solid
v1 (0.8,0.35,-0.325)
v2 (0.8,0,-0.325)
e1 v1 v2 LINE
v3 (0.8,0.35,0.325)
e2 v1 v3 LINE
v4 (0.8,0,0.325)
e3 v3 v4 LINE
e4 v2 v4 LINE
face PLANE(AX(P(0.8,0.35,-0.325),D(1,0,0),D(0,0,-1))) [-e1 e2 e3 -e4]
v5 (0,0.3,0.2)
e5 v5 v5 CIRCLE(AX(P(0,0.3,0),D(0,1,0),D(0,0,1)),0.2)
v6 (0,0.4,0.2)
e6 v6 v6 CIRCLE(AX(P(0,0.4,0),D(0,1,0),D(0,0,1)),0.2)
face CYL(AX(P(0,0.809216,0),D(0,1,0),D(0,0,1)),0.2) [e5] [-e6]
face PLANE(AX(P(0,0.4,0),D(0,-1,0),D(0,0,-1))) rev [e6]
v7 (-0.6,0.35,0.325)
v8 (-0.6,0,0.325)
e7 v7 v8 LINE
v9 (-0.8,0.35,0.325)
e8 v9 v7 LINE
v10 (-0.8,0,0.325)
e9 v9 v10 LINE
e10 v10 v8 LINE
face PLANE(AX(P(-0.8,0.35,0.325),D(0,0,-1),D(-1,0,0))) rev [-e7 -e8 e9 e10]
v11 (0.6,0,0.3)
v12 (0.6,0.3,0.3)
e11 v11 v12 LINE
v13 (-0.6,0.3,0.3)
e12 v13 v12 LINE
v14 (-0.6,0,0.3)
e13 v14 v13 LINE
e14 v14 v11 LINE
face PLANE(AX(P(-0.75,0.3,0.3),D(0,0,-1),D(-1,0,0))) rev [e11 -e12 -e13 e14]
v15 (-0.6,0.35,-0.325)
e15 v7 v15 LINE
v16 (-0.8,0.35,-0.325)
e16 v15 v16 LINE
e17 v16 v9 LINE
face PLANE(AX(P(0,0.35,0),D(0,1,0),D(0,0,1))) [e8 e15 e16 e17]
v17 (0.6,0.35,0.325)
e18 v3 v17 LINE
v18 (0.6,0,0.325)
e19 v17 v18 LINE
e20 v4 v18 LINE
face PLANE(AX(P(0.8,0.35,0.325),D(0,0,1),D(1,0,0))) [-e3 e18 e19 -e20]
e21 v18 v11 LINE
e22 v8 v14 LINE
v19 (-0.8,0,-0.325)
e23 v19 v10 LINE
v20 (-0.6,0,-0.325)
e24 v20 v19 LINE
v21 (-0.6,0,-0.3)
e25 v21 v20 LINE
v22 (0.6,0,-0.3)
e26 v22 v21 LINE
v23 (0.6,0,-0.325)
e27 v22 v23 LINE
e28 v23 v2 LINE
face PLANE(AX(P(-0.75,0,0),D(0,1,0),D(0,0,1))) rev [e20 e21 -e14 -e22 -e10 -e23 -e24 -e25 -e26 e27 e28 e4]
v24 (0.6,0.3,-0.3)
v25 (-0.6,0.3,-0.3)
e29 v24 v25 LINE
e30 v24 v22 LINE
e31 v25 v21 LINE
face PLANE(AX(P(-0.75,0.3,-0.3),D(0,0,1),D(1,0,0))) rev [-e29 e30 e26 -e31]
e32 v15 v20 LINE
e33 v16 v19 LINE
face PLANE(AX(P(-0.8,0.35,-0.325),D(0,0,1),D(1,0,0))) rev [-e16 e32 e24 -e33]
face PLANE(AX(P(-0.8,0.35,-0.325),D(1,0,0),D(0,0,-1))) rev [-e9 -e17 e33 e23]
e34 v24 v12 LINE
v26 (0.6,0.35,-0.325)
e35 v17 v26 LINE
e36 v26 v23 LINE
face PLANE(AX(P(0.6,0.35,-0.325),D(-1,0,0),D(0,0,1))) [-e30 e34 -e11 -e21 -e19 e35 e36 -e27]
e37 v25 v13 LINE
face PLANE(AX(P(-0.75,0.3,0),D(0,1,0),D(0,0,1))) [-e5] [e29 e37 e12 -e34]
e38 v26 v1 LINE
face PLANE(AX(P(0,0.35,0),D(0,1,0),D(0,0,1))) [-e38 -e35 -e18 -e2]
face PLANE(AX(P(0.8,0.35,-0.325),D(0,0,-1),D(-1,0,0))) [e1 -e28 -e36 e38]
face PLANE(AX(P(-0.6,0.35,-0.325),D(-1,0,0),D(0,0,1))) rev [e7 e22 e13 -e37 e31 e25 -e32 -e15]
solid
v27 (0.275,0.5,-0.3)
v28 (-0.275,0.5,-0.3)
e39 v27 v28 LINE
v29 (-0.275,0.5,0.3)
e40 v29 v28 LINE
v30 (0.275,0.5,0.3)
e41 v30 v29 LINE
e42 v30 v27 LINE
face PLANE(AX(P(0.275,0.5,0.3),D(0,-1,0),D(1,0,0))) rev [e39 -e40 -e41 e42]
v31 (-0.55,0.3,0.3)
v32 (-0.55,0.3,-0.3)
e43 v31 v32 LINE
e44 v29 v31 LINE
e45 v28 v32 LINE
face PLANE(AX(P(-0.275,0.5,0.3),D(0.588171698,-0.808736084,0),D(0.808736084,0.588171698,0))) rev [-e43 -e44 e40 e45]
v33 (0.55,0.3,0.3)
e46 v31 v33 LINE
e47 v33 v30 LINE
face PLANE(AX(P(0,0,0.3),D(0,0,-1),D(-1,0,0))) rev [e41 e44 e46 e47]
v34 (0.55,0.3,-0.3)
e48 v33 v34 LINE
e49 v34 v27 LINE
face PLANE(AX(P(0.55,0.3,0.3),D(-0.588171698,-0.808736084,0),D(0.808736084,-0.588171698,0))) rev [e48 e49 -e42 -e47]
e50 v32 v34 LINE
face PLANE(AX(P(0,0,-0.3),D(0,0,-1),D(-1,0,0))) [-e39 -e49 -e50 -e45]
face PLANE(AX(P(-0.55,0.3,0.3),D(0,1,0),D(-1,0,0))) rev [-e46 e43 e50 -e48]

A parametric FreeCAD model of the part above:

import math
import FreeCAD as App
import Part
import Sketcher

V = App.Vector


def add_polygon(sketch, points):
    """Adds a closed chain of lines whose ends are joined by coincident constraints."""
    first, n = sketch.GeometryCount, len(points)
    for a, b in zip(points, points[1:] + points[:1]):
        sketch.addGeometry(Part.LineSegment(App.Vector(*a, 0), App.Vector(*b, 0)), False)
    for i in range(n):
        sketch.addConstraint(Sketcher.Constraint("Coincident", first + i, 2, first + (i + 1) % n, 1))

doc = App.newDocument("Part")
body = doc.addObject("PartDesign::Body", "Body")

sketch1 = doc.addObject("Sketcher::SketchObject", "Sketch")
body.addObject(sketch1)
sketch1.AttachmentSupport = (doc.XZ_Plane, [""])
sketch1.MapMode = "FlatFace"
sketch1.addGeometry([
    Part.LineSegment(V(0.75, -0.3, 0), V(-0.75, -0.3, 0)),
    Part.LineSegment(V(-0.75, -0.3, 0), V(-0.75, -0.12, 0)),
    Part.ArcOfCircle(Part.Circle(V(-0.75, 0, 0), V(0, 0, 1), 0.12), math.radians(-90), math.radians(90)),
    Part.LineSegment(V(-0.75, 0.12, 0), V(-0.75, 0.3, 0)),
    Part.LineSegment(V(-0.75, 0.3, 0), V(0.75, 0.3, 0)),
    Part.LineSegment(V(0.75, 0.3, 0), V(0.75, 0.12, 0)),
    Part.ArcOfCircle(Part.Circle(V(0.75, 0, 0), V(0, 0, 1), 0.12), math.radians(90), math.radians(270)),
    Part.LineSegment(V(0.75, -0.12, 0), V(0.75, -0.3, 0)),
], False)
sketch1.addConstraint([
    Sketcher.Constraint("Coincident", 0, 2, 1, 1),
    Sketcher.Constraint("Coincident", 1, 2, 2, 1),
    Sketcher.Constraint("Coincident", 2, 2, 3, 1),
    Sketcher.Constraint("Coincident", 3, 2, 4, 1),
    Sketcher.Constraint("Coincident", 4, 2, 5, 1),
    Sketcher.Constraint("Coincident", 5, 2, 6, 1),
    Sketcher.Constraint("Coincident", 6, 2, 7, 1),
    Sketcher.Constraint("Coincident", 7, 2, 0, 1),
    Sketcher.Constraint("Horizontal", 0),
    Sketcher.Constraint("Vertical", 1),
    Sketcher.Constraint("Vertical", 3),
    Sketcher.Constraint("Horizontal", 4),
    Sketcher.Constraint("Vertical", 5),
    Sketcher.Constraint("Vertical", 7),
    Sketcher.Constraint("Equal", 2, 6),
    Sketcher.Constraint("Symmetric", 2, 3, 6, 3, -1, 1),
    Sketcher.Constraint("Symmetric", 0, 2, 4, 2, -1, 1),
    Sketcher.Constraint("Symmetric", 2, 2, 5, 2, -2),
    Sketcher.Constraint("Vertical", 2, 3, 0, 2),
    Sketcher.Constraint("Vertical", 5, 2, 6, 2),
    Sketcher.Constraint("DistanceX", 0, 2, 0, 1, 1.5),
    Sketcher.Constraint("Radius", 2, 0.125),
    Sketcher.Constraint("DistanceY", 0, 2, -1, 1, 0.3),
])
pad1 = doc.addObject("PartDesign::Pad", "Pad")
body.addObject(pad1)
pad1.Profile = sketch1
pad1.Length = 0.3
pad1.Reversed = True

sketch2 = doc.addObject("Sketcher::SketchObject", "Sketch001")
body.addObject(sketch2)
sketch2.AttachmentSupport = (doc.XY_Plane, [""])
sketch2.MapMode = "FlatFace"
add_polygon(sketch2, [(0, 0.4), (0, 0.3), (0.2, 0.3), (0.2, 0.4)])
sketch2.addConstraint([
    Sketcher.Constraint("Vertical", 0),
    Sketcher.Constraint("Horizontal", 1),
    Sketcher.Constraint("Vertical", 2),
    Sketcher.Constraint("Horizontal", 3),
    Sketcher.Constraint("PointOnObject", 0, 2, -2),
    Sketcher.Constraint("DistanceX", 1, 1, 1, 2, 0.2),
    Sketcher.Constraint("DistanceY", 0, 2, 0, 1, 0.1),
    Sketcher.Constraint("DistanceY", -1, 1, 0, 2, 0.3),
])
revolution = doc.addObject("PartDesign::Revolution", "Revolution")
body.addObject(revolution)
revolution.Profile = sketch2
revolution.ReferenceAxis = (sketch2, ["V_Axis"])
revolution.Angle = 360

sketch3 = doc.addObject("Sketcher::SketchObject", "Sketch002")
body.addObject(sketch3)
sketch3.AttachmentSupport = (doc.XZ_Plane, [""])
sketch3.MapMode = "FlatFace"
add_polygon(sketch3, [(-0.8, -0.33), (-0.8, 0.33), (-0.6, 0.33), (-0.6, -0.33)])
sketch3.addConstraint([
    Sketcher.Constraint("Vertical", 0),
    Sketcher.Constraint("Horizontal", 1),
    Sketcher.Constraint("Vertical", 2),
    Sketcher.Constraint("Horizontal", 3),
    Sketcher.Constraint("DistanceX", 1, 1, 1, 2, 0.2),
    Sketcher.Constraint("DistanceY", 0, 1, 0, 2, 0.65),
    Sketcher.Constraint("DistanceX", 0, 2, -1, 1, 0.8),
    Sketcher.Constraint("DistanceY", -1, 1, 0, 2, 0.325),
])
pad2 = doc.addObject("PartDesign::Pad", "Pad001")
body.addObject(pad2)
pad2.Profile = sketch3
pad2.Length = 0.35
pad2.Reversed = True
doc.recompute()

mirrored = doc.addObject("PartDesign::Mirrored", "Mirrored")
body.addObject(mirrored)
mirrored.Originals = [pad2]
mirrored.MirrorPlane = (doc.YZ_Plane, [""])
body.Tip = mirrored
body2 = doc.addObject("PartDesign::Body", "Body001")

sketch4 = doc.addObject("Sketcher::SketchObject", "Sketch003")
body2.addObject(sketch4)
sketch4.AttachmentSupport = (doc.getObject("XY_Plane001"), [""])
sketch4.MapMode = "FlatFace"
add_polygon(sketch4, [(-0.55, 0.3), (0.55, 0.3), (0.28, 0.5), (-0.28, 0.5)])
sketch4.addConstraint([
    Sketcher.Constraint("Horizontal", 0),
    Sketcher.Constraint("Horizontal", 2),
    Sketcher.Constraint("Equal", 1, 3),
    Sketcher.Constraint("DistanceX", 0, 1, 0, 2, 1.1),
    Sketcher.Constraint("DistanceX", 2, 2, 2, 1, 0.55),
    Sketcher.Constraint("DistanceY", -1, 1, 0, 2, 0.3),
    Sketcher.Constraint("DistanceY", -1, 1, 1, 2, 0.5),
    Sketcher.Constraint("DistanceX", -1, 1, 0, 2, 0.55),
])
pad3 = doc.addObject("PartDesign::Pad", "Pad002")
body2.addObject(pad3)
pad3.Profile = sketch4
pad3.Length = 0.6
pad3.Midplane = True

doc.recompute()
